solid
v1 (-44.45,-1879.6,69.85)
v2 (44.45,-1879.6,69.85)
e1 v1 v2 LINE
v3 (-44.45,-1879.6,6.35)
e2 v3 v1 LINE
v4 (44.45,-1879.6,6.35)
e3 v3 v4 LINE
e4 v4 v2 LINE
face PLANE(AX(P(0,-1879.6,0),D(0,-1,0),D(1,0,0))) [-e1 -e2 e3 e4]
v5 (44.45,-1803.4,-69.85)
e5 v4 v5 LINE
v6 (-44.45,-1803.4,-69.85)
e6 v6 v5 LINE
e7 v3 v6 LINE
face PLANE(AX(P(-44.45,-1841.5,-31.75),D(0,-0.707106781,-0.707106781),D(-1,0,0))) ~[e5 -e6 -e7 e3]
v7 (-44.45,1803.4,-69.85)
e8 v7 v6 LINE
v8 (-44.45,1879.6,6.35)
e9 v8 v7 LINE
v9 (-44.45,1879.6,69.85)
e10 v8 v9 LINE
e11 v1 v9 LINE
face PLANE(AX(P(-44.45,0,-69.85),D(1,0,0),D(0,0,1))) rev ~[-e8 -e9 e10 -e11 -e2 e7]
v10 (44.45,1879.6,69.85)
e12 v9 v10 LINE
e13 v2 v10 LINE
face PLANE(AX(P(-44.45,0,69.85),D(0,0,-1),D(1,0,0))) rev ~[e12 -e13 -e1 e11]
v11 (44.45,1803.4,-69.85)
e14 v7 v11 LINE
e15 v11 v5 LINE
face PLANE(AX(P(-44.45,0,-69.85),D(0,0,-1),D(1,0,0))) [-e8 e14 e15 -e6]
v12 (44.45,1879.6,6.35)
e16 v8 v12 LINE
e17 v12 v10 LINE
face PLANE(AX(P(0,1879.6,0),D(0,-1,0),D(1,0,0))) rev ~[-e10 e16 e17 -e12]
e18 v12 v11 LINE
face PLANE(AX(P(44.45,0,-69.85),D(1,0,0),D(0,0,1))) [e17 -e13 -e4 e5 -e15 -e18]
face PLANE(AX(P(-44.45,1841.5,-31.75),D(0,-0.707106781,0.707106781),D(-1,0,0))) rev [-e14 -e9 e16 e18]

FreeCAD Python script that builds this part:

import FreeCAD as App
import Part
import Sketcher
Q = App.Units.Quantity


def edges_at(feature, points):
    """Names of the edges that pass closest to the given points."""
    edges = feature.Shape.Edges
    near = lambda p: min(range(len(edges)), key=lambda i: edges[i].distToShape(Part.Vertex(*p))[0])
    return sorted({f"Edge{near(p) + 1}" for p in points})

doc = App.newDocument("Part")
body = doc.addObject("PartDesign::Body", "Body")

# Sketch on XZ plane
sketch1 = doc.addObject("Sketcher::SketchObject", "Sketch")
body.addObject(sketch1)
sketch1.AttachmentSupport = (doc.XZ_Plane, [""])
sketch1.MapMode = "FlatFace"
sketch1.addGeometry([
    Part.LineSegment(App.Vector(-44, 70, 0), App.Vector(-44, -70, 0)),
    Part.LineSegment(App.Vector(-44, -70, 0), App.Vector(44, -70, 0)),
    Part.LineSegment(App.Vector(44, -70, 0), App.Vector(44, 70, 0)),
    Part.LineSegment(App.Vector(44, 70, 0), App.Vector(-44, 70, 0)),
], False)
sketch1.addConstraint([
    Sketcher.Constraint("Coincident", 0, 2, 1, 1),
    Sketcher.Constraint("Coincident", 1, 2, 2, 1),
    Sketcher.Constraint("Coincident", 2, 2, 3, 1),
    Sketcher.Constraint("Coincident", 3, 2, 0, 1),
    Sketcher.Constraint("Vertical", 0),
    Sketcher.Constraint("Horizontal", 1),
    Sketcher.Constraint("Vertical", 2),
    Sketcher.Constraint("Horizontal", 3),
    Sketcher.Constraint("Symmetric", 0, 2, 2, 2, -1, 1),
    Sketcher.Constraint("DistanceX", 1, 1, 1, 2, Q("3.5 in")),
    Sketcher.Constraint("DistanceY", 0, 2, 0, 1, Q("5.5 in")),
])
pad1 = doc.addObject("PartDesign::Pad", "Pad")
body.addObject(pad1)
pad1.Profile = sketch1
pad1.Length = Q("148 in")
pad1.Midplane = True
doc.recompute()

chamfer = doc.addObject("PartDesign::Chamfer", "Chamfer")
body.addObject(chamfer)
chamfer.Base = (pad1, edges_at(pad1, [(0, -1879.6, -69.85), (0, 1879.6, -69.85)]))
chamfer.Size = Q("3 in")

doc.recompute()
